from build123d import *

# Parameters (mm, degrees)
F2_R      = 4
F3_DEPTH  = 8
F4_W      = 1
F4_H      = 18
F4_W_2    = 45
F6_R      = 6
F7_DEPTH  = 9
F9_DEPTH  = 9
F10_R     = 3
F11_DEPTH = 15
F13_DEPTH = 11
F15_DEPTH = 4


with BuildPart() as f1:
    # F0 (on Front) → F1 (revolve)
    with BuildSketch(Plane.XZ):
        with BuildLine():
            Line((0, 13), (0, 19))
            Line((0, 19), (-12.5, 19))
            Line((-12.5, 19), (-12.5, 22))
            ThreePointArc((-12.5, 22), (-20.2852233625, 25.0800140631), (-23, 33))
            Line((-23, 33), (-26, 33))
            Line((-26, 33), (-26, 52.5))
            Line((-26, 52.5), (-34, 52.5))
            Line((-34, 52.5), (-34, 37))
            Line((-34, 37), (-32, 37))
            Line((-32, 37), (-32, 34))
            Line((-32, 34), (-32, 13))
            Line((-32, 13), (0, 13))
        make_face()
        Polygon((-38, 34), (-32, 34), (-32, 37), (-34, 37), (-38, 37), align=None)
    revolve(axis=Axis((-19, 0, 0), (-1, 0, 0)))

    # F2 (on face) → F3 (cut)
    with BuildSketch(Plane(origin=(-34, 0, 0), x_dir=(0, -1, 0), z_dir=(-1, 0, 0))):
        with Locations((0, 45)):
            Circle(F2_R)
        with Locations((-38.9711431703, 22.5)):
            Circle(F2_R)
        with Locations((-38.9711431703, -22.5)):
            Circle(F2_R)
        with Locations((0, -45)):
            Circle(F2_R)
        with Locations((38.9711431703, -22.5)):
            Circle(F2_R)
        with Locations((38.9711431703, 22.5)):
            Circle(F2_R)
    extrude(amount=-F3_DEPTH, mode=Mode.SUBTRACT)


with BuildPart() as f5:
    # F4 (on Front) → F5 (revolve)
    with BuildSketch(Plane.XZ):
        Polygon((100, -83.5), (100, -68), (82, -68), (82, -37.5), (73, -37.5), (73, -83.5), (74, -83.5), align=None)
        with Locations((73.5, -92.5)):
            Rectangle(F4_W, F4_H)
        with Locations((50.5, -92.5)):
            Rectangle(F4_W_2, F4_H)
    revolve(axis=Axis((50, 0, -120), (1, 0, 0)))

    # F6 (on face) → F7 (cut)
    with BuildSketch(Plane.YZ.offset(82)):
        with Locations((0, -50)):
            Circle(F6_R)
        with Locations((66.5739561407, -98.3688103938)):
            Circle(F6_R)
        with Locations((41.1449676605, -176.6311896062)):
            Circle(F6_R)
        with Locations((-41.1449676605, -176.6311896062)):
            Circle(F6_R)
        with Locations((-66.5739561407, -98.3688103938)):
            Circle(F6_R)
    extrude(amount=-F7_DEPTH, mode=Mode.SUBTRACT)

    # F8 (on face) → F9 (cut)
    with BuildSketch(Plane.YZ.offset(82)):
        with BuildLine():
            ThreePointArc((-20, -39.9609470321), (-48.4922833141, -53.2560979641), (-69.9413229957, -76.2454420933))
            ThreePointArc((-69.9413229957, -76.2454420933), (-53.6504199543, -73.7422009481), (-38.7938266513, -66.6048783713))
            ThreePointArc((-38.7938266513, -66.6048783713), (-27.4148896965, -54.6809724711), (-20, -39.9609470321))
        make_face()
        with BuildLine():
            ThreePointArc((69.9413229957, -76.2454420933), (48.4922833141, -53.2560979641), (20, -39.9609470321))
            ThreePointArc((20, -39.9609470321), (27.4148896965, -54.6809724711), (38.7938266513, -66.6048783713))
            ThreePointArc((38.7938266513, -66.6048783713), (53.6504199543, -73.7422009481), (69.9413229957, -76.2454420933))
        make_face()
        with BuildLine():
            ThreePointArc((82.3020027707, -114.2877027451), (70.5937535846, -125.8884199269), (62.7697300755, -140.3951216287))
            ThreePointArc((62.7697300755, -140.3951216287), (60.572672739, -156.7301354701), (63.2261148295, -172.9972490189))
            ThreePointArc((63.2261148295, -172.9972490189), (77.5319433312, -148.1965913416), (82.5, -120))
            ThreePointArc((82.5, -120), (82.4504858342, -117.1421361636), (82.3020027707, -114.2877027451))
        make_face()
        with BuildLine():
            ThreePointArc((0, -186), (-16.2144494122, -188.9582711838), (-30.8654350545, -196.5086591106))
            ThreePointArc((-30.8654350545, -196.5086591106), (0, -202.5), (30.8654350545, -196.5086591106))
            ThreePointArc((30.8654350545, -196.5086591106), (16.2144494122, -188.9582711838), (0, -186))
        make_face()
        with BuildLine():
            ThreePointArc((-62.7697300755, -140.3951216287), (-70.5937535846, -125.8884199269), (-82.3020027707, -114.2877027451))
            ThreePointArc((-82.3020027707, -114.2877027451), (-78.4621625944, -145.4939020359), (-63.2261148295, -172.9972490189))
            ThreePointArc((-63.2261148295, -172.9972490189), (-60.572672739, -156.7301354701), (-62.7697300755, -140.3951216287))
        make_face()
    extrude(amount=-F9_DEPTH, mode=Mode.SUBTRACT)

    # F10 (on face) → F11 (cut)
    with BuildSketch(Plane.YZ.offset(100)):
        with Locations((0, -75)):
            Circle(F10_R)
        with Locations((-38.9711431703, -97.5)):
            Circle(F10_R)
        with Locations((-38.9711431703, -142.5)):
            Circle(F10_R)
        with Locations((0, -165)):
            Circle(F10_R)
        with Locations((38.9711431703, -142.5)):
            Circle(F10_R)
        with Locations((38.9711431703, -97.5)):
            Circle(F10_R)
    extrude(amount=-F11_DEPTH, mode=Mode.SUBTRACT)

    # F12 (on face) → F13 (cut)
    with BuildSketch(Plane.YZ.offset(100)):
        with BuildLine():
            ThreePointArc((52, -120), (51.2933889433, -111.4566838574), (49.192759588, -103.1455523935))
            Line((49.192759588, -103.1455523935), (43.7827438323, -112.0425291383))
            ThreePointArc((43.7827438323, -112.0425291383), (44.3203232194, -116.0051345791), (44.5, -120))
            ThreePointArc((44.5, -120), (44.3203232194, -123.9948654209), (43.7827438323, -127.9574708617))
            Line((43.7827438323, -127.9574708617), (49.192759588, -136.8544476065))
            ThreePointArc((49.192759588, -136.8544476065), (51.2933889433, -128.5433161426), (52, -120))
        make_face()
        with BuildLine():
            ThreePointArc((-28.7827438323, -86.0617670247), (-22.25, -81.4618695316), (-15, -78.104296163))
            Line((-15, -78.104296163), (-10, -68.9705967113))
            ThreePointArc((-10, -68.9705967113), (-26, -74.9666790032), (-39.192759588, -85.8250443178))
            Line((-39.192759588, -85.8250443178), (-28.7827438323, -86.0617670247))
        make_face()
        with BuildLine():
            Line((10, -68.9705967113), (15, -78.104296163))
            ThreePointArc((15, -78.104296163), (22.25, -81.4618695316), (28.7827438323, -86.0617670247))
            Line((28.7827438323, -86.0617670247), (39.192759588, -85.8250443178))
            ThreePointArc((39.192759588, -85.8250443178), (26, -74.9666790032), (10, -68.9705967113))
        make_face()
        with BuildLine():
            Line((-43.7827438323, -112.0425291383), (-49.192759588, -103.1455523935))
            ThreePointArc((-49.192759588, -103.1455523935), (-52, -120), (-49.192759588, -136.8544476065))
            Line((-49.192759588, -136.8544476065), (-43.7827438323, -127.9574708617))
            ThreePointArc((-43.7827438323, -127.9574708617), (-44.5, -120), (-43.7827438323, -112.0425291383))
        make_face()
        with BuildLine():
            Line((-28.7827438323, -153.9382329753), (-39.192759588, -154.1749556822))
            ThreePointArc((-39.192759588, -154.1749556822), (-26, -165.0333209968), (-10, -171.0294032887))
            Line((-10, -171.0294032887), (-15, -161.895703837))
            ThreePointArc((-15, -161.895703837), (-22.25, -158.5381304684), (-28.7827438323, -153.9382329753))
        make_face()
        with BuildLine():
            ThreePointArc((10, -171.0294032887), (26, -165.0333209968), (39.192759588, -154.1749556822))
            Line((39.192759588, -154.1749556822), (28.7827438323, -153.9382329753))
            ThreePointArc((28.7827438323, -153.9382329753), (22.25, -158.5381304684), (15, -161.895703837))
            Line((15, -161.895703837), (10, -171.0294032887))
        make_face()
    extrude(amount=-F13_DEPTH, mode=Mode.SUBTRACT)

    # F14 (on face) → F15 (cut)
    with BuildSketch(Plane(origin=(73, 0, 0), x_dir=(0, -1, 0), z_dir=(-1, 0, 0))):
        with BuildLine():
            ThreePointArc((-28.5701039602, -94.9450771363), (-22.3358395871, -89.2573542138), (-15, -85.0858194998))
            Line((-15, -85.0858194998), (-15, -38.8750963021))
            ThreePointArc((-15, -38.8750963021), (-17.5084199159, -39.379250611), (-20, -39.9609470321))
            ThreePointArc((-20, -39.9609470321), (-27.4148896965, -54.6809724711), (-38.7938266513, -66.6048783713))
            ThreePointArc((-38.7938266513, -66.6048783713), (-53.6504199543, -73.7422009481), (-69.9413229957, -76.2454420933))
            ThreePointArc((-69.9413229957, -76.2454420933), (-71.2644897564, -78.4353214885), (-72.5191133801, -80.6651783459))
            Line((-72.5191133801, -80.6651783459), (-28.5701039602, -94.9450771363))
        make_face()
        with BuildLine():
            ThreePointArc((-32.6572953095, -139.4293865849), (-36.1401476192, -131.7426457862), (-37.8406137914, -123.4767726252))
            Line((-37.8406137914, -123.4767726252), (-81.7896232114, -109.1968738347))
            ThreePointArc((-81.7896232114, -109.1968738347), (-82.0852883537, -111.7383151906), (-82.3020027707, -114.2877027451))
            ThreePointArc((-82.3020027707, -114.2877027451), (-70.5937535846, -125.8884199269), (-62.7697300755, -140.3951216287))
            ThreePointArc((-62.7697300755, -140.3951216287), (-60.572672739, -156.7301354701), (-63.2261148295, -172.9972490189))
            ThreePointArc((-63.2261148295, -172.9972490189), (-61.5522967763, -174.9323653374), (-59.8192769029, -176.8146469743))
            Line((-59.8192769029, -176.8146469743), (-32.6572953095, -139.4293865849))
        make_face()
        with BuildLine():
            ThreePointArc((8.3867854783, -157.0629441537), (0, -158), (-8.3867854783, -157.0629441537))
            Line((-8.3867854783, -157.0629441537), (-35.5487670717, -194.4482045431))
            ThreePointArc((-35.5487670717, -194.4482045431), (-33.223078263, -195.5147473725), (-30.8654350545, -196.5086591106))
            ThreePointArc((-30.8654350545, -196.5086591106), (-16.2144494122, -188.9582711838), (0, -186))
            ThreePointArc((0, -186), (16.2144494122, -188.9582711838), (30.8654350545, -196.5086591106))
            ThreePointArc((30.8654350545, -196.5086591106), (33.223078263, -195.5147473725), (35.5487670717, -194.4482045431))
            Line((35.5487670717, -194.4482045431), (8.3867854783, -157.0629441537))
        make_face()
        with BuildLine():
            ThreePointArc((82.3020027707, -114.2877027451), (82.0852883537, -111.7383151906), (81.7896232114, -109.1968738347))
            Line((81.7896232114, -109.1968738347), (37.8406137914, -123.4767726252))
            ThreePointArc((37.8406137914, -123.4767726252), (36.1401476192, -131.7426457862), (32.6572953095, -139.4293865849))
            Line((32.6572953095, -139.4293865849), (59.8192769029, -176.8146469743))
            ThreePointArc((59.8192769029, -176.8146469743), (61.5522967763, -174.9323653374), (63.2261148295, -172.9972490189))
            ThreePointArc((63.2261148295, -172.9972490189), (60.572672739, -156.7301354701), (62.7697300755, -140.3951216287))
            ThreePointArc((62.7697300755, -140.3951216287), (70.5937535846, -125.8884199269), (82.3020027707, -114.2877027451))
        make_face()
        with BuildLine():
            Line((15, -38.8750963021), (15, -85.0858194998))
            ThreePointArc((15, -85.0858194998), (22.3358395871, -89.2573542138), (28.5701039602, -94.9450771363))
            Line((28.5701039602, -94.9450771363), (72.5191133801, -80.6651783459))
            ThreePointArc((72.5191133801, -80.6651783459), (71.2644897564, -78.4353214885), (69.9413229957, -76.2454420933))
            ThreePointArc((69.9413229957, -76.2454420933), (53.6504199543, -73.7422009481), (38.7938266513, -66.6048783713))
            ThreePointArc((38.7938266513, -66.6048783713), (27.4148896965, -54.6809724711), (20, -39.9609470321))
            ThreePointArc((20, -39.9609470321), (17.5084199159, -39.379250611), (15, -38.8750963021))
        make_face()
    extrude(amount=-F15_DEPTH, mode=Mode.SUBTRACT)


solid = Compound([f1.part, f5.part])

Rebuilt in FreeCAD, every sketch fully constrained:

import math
import FreeCAD as App
import Part
import Sketcher
Q = App.Units.Quantity

doc = App.newDocument("Part")
body = doc.addObject("PartDesign::Body", "Body")

sketch1 = body.newObject("Sketcher::SketchObject", "Sketch")
sketch1.AttachmentSupport = (doc.getObject("XZ_Plane"), [""])
sketch1.MapMode = "FlatFace"
sketch1.addGeometry([
    Part.LineSegment(App.Vector(0, 13, 0), App.Vector(0, 19, 0)),
    Part.LineSegment(App.Vector(0, 19, 0), App.Vector(-12.5, 19, 0)),
    Part.LineSegment(App.Vector(-12.5, 19, 0), App.Vector(-12.5, 22, 0)),
    Part.ArcOfCircle(Part.Circle(App.Vector(-13.1, 32, 0), App.Vector(0, 0, 1), 10), math.radians(174), math.radians(273)),
    Part.LineSegment(App.Vector(-23, 33, 0), App.Vector(-26, 33, 0)),
    Part.LineSegment(App.Vector(-26, 33, 0), App.Vector(-26, 52.5, 0)),
    Part.LineSegment(App.Vector(-26, 52.5, 0), App.Vector(-34, 52.5, 0)),
    Part.LineSegment(App.Vector(-34, 52.5, 0), App.Vector(-34, 37, 0)),
    Part.LineSegment(App.Vector(-34, 37, 0), App.Vector(-38, 37, 0)),
    Part.LineSegment(App.Vector(-38, 37, 0), App.Vector(-38, 34, 0)),
    Part.LineSegment(App.Vector(-38, 34, 0), App.Vector(-32, 34, 0)),
    Part.LineSegment(App.Vector(-32, 34, 0), App.Vector(-32, 13, 0)),
    Part.LineSegment(App.Vector(-32, 13, 0), App.Vector(0, 13, 0)),
], False)
sketch1.addConstraint([
    Sketcher.Constraint("Coincident", 0, 2, 1, 1),
    Sketcher.Constraint("Coincident", 1, 2, 2, 1),
    Sketcher.Constraint("Coincident", 2, 2, 3, 2),
    Sketcher.Constraint("Coincident", 3, 1, 4, 1),
    Sketcher.Constraint("Coincident", 4, 2, 5, 1),
    Sketcher.Constraint("Coincident", 5, 2, 6, 1),
    Sketcher.Constraint("Coincident", 6, 2, 7, 1),
    Sketcher.Constraint("Coincident", 7, 2, 8, 1),
    Sketcher.Constraint("Coincident", 8, 2, 9, 1),
    Sketcher.Constraint("Coincident", 9, 2, 10, 1),
    Sketcher.Constraint("Coincident", 10, 2, 11, 1),
    Sketcher.Constraint("Coincident", 11, 2, 12, 1),
    Sketcher.Constraint("Coincident", 12, 2, 0, 1),
    Sketcher.Constraint("Vertical", 0),
    Sketcher.Constraint("Horizontal", 1),
    Sketcher.Constraint("Vertical", 2),
    Sketcher.Constraint("Horizontal", 4),
    Sketcher.Constraint("Vertical", 5),
    Sketcher.Constraint("Horizontal", 6),
    Sketcher.Constraint("Vertical", 7),
    Sketcher.Constraint("Horizontal", 8),
    Sketcher.Constraint("Vertical", 9),
    Sketcher.Constraint("Horizontal", 10),
    Sketcher.Constraint("Vertical", 11),
    Sketcher.Constraint("Horizontal", 12),
    Sketcher.Constraint("PointOnObject", 0, 2, -2),
    Sketcher.Constraint("Equal", 10, 0),
    Sketcher.Constraint("Equal", 4, 2),
    Sketcher.Constraint("Equal", 2, 9),
    Sketcher.Constraint("Radius", 3, 10.0),
    Sketcher.Constraint("DistanceX", 4, 2, 4, 1, 3.0),
    Sketcher.Constraint("DistanceX", 6, 2, 6, 1, 8.0),
    Sketcher.Constraint("DistanceX", 8, 2, 8, 1, 4.0),
    Sketcher.Constraint("DistanceX", 10, 1, 10, 2, 6.0),
    Sketcher.Constraint("DistanceX", 12, 1, 12, 2, 32.0),
    Sketcher.Constraint("DistanceY", 11, 2, 11, 1, 21.0),
    Sketcher.Constraint("DistanceX", 1, 2, 1, 1, 12.5),
    Sketcher.Constraint("DistanceY", 5, 1, 5, 2, 19.5),
    Sketcher.Constraint("DistanceY", 7, 2, 7, 1, 15.5),
    Sketcher.Constraint("DistanceY", -1, 1, 0, 2, 19.0),
])
revolution = body.newObject("PartDesign::Revolution", "Revolution")
revolution.Profile = sketch1
revolution.ReferenceAxis = (sketch1, ["H_Axis"])
revolution.Angle = 360

sketch2 = body.newObject("Sketcher::SketchObject", "Sketch001")
sketch2.AttachmentSupport = (doc.getObject("YZ_Plane"), [""])
sketch2.MapMode = "FlatFace"
sketch2.AttachmentOffset = App.Placement(App.Vector(0, 0, -34), App.Rotation())
sketch2.addGeometry([
    Part.Circle(App.Vector(0, 45, 0), App.Vector(0, 0, 1), 4),
    Part.Circle(App.Vector(39, 22.5, 0), App.Vector(0, 0, 1), 4),
    Part.Circle(App.Vector(39, -22.5, 0), App.Vector(0, 0, 1), 4),
    Part.Circle(App.Vector(0, -45, 0), App.Vector(0, 0, 1), 4),
    Part.Circle(App.Vector(-39, -22.5, 0), App.Vector(0, 0, 1), 4),
    Part.Circle(App.Vector(-39, 22.5, 0), App.Vector(0, 0, 1), 4),
], False)
sketch2.addConstraint([
    Sketcher.Constraint("Equal", 0, 1),
    Sketcher.Constraint("Equal", 1, 2),
    Sketcher.Constraint("Equal", 2, 3),
    Sketcher.Constraint("Equal", 3, 4),
    Sketcher.Constraint("Equal", 4, 5),
    Sketcher.Constraint("Symmetric", 0, 3, 3, 3, -1, 1),
    Sketcher.Constraint("Symmetric", 1, 3, 4, 3, -1, 1),
    Sketcher.Constraint("Symmetric", 2, 3, 5, 3, -1, 1),
    Sketcher.Constraint("Symmetric", 2, 3, 4, 3, -2),
    Sketcher.Constraint("PointOnObject", 0, 3, -2),
    Sketcher.Constraint("Diameter", 0, 8.0),
    Sketcher.Constraint("DistanceY", -1, 1, 0, 3, 45.0),
    Sketcher.Constraint("DistanceY", 2, 3, 1, 3, 45.0),
    Sketcher.Constraint("DistanceX", -1, 1, 1, 3, 38.971143),
])
pocket1 = body.newObject("PartDesign::Pocket", "Pocket")
pocket1.Profile = sketch2
pocket1.Length = 8
pocket1.Reversed = True
body2 = doc.addObject("PartDesign::Body", "Body001")

sketch3 = body2.newObject("Sketcher::SketchObject", "Sketch002")
sketch3.AttachmentSupport = (doc.getObject("XZ_Plane001"), [""])
sketch3.MapMode = "FlatFace"
sketch3.addGeometry([
    Part.LineSegment(App.Vector(74, -84, 0), App.Vector(100, -84, 0)),
    Part.LineSegment(App.Vector(100, -84, 0), App.Vector(100, -68, 0)),
    Part.LineSegment(App.Vector(100, -68, 0), App.Vector(82, -68, 0)),
    Part.LineSegment(App.Vector(82, -68, 0), App.Vector(82, -38, 0)),
    Part.LineSegment(App.Vector(82, -38, 0), App.Vector(73, -38, 0)),
    Part.LineSegment(App.Vector(73, -38, 0), App.Vector(73, -84, 0)),
    Part.LineSegment(App.Vector(73, -84, 0), App.Vector(28, -84, 0)),
    Part.LineSegment(App.Vector(28, -84, 0), App.Vector(28, -102, 0)),
    Part.LineSegment(App.Vector(28, -102, 0), App.Vector(74, -102, 0)),
    Part.LineSegment(App.Vector(74, -102, 0), App.Vector(74, -84, 0)),
], False)
sketch3.addGeometry(Part.LineSegment(App.Vector(28, -120, 0), App.Vector(100, -120, 0)), True)
sketch3.addConstraint([
    Sketcher.Constraint("Coincident", 0, 2, 1, 1),
    Sketcher.Constraint("Coincident", 1, 2, 2, 1),
    Sketcher.Constraint("Coincident", 2, 2, 3, 1),
    Sketcher.Constraint("Coincident", 3, 2, 4, 1),
    Sketcher.Constraint("Coincident", 4, 2, 5, 1),
    Sketcher.Constraint("Coincident", 5, 2, 6, 1),
    Sketcher.Constraint("Coincident", 6, 2, 7, 1),
    Sketcher.Constraint("Coincident", 7, 2, 8, 1),
    Sketcher.Constraint("Coincident", 8, 2, 9, 1),
    Sketcher.Constraint("Coincident", 9, 2, 0, 1),
    Sketcher.Constraint("Horizontal", 0),
    Sketcher.Constraint("Vertical", 1),
    Sketcher.Constraint("Horizontal", 2),
    Sketcher.Constraint("Vertical", 3),
    Sketcher.Constraint("Horizontal", 4),
    Sketcher.Constraint("Vertical", 5),
    Sketcher.Constraint("Horizontal", 6),
    Sketcher.Constraint("Vertical", 7),
    Sketcher.Constraint("Horizontal", 8),
    Sketcher.Constraint("Vertical", 9),
    Sketcher.Constraint("Horizontal", 10),
    Sketcher.Constraint("Horizontal", 0, 2, 5, 2),
    Sketcher.Constraint("Vertical", 7, 2, 10, 1),
    Sketcher.Constraint("Vertical", 1, 2, 10, 2),
    Sketcher.Constraint("Equal", 8, 5),
    Sketcher.Constraint("Equal", 2, 7),
    Sketcher.Constraint("DistanceX", 0, 1, 0, 2, 26.0),
    Sketcher.Constraint("DistanceX", 2, 2, 2, 1, 18.0),
    Sketcher.Constraint("DistanceX", 4, 2, 4, 1, 9.0),
    Sketcher.Constraint("DistanceX", 6, 2, 6, 1, 45.0),
    Sketcher.Constraint("DistanceY", 1, 1, 1, 2, 15.5),
    Sketcher.Constraint("DistanceX", -1, 1, 0, 2, 100.0),
    Sketcher.Constraint("DistanceY", 1, 2, -1, 1, 68.0),
    Sketcher.Constraint("DistanceY", 10, 1, -1, 1, 120.0),
])
revolution2 = body2.newObject("PartDesign::Revolution", "Revolution001")
revolution2.Profile = sketch3
revolution2.ReferenceAxis = (sketch3, ["Axis0"])
revolution2.Angle = 360

sketch4 = body2.newObject("Sketcher::SketchObject", "Sketch003")
sketch4.AttachmentSupport = (doc.getObject("YZ_Plane001"), [""])
sketch4.MapMode = "FlatFace"
sketch4.AttachmentOffset = App.Placement(App.Vector(0, 0, 82), App.Rotation())
sketch4.addGeometry([
    Part.Circle(App.Vector(0, -50, 0), App.Vector(0, 0, 1), 6),
    Part.Circle(App.Vector(67, -98, 0), App.Vector(0, 0, 1), 6),
    Part.Circle(App.Vector(41, -177, 0), App.Vector(0, 0, 1), 6),
    Part.Circle(App.Vector(-41, -177, 0), App.Vector(0, 0, 1), 6),
    Part.Circle(App.Vector(-67, -98, 0), App.Vector(0, 0, 1), 6),
], False)
sketch4.addConstraint([
    Sketcher.Constraint("Equal", 0, 1),
    Sketcher.Constraint("Equal", 1, 2),
    Sketcher.Constraint("Equal", 2, 3),
    Sketcher.Constraint("Equal", 3, 4),
    Sketcher.Constraint("Symmetric", 2, 3, 3, 3, -2),
    Sketcher.Constraint("Symmetric", 1, 3, 4, 3, -2),
    Sketcher.Constraint("PointOnObject", 0, 3, -2),
    Sketcher.Constraint("Diameter", 0, 12.0),
    Sketcher.Constraint("DistanceY", 0, 3, -1, 1, 50.0),
    Sketcher.Constraint("DistanceY", 1, 3, -1, 1, 98.36881),
    Sketcher.Constraint("DistanceY", 2, 3, -1, 1, 176.63119),
    Sketcher.Constraint("DistanceX", 2, 3, 1, 3, 25.428988),
    Sketcher.Constraint("DistanceX", -1, 1, 1, 3, 66.573956),
])
pocket2 = body2.newObject("PartDesign::Pocket", "Pocket001")
pocket2.Profile = sketch4
pocket2.Length = 9

sketch5 = body2.newObject("Sketcher::SketchObject", "Sketch004")
sketch5.AttachmentSupport = (doc.getObject("YZ_Plane001"), [""])
sketch5.MapMode = "FlatFace"
sketch5.AttachmentOffset = App.Placement(App.Vector(0, 0, 82), App.Rotation())
sketch5.addGeometry([
    Part.ArcOfCircle(Part.Circle(App.Vector(0, -120, 0), App.Vector(0, 0, 1), 82), math.radians(104), math.radians(148)),
    Part.ArcOfCircle(Part.Circle(App.Vector(-70, -20, 0), App.Vector(0, 0, 1), 56), math.radians(-90), math.radians(-56)),
    Part.ArcOfCircle(Part.Circle(App.Vector(-73, -22, 0), App.Vector(0, 0, 1), 56), math.radians(-52), math.radians(-18)),
    Part.ArcOfCircle(Part.Circle(App.Vector(0, -120, 0), App.Vector(0, 0, 1), 82), math.radians(32), math.radians(76)),
    Part.ArcOfCircle(Part.Circle(App.Vector(73, -22, 0), App.Vector(0, 0, 1), 56), math.radians(-162), math.radians(-128)),
    Part.ArcOfCircle(Part.Circle(App.Vector(70, -20, 0), App.Vector(0, 0, 1), 56), math.radians(-124), math.radians(-90)),
    Part.ArcOfCircle(Part.Circle(App.Vector(115, -159, 0), App.Vector(0, 0, 1), 56), math.radians(126), math.radians(160)),
    Part.ArcOfCircle(Part.Circle(App.Vector(117, -156, 0), App.Vector(0, 0, 1), 56), math.radians(164), math.radians(198)),
    Part.ArcOfCircle(Part.Circle(App.Vector(0, -120, 0), App.Vector(0, 0, 1), 82), math.radians(-40), math.radians(0)),
    Part.ArcOfCircle(Part.Circle(App.Vector(0, -120, 0), App.Vector(0, 0, 1), 82), math.radians(0), math.radians(3.97)),
    Part.ArcOfCircle(Part.Circle(App.Vector(2, -242, 0), App.Vector(0, 0, 1), 56), math.radians(92), math.radians(126)),
    Part.ArcOfCircle(Part.Circle(App.Vector(0, -120, 0), App.Vector(0, 0, 1), 82), math.radians(-112), math.radians(-68)),
    Part.ArcOfCircle(Part.Circle(App.Vector(-2, -242, 0), App.Vector(0, 0, 1), 56), math.radians(54), math.radians(88)),
    Part.ArcOfCircle(Part.Circle(App.Vector(-115, -159, 0), App.Vector(0, 0, 1), 56), math.radians(20), math.radians(54)),
    Part.ArcOfCircle(Part.Circle(App.Vector(0, -120, 0), App.Vector(0, 0, 1), 82), math.radians(176), math.radians(220)),
    Part.ArcOfCircle(Part.Circle(App.Vector(-117, -156, 0), App.Vector(0, 0, 1), 56), math.radians(-18), math.radians(16)),
], False)
sketch5.addConstraint([
    Sketcher.Constraint("Coincident", 0, 2, 1, 1),
    Sketcher.Constraint("Coincident", 1, 2, 2, 1),
    Sketcher.Constraint("Coincident", 2, 2, 0, 1),
    Sketcher.Constraint("Coincident", 3, 2, 4, 1),
    Sketcher.Constraint("Coincident", 4, 2, 5, 1),
    Sketcher.Constraint("Coincident", 5, 2, 3, 1),
    Sketcher.Constraint("Coincident", 6, 2, 7, 1),
    Sketcher.Constraint("Coincident", 7, 2, 8, 1),
    Sketcher.Constraint("Tangent", 8, 2, 9, 1),
    Sketcher.Constraint("Coincident", 9, 2, 6, 1),
    Sketcher.Constraint("Coincident", 10, 2, 11, 1),
    Sketcher.Constraint("Coincident", 11, 2, 12, 1),
    Sketcher.Constraint("Coincident", 12, 2, 10, 1),
    Sketcher.Constraint("Coincident", 13, 2, 14, 1),
    Sketcher.Constraint("Coincident", 14, 2, 15, 1),
    Sketcher.Constraint("Coincident", 15, 2, 13, 1),
    Sketcher.Constraint("Coincident", 3, 3, 0, 3),
    Sketcher.Constraint("Coincident", 8, 3, 0, 3),
    Sketcher.Constraint("Coincident", 11, 3, 0, 3),
    Sketcher.Constraint("Coincident", 14, 3, 0, 3),
    Sketcher.Constraint("Equal", 1, 2),
    Sketcher.Constraint("Equal", 0, 3),
    Sketcher.Constraint("Equal", 2, 4),
    Sketcher.Constraint("Equal", 4, 5),
    Sketcher.Constraint("Equal", 5, 6),
    Sketcher.Constraint("Equal", 6, 7),
    Sketcher.Constraint("Equal", 3, 8),
    Sketcher.Constraint("Equal", 8, 9),
    Sketcher.Constraint("Equal", 7, 10),
    Sketcher.Constraint("Equal", 9, 11),
    Sketcher.Constraint("Equal", 10, 12),
    Sketcher.Constraint("Equal", 12, 13),
    Sketcher.Constraint("Equal", 11, 14),
    Sketcher.Constraint("Equal", 13, 15),
    Sketcher.Constraint("Symmetric", 2, 3, 4, 3, -2),
    Sketcher.Constraint("Symmetric", 1, 3, 5, 3, -2),
    Sketcher.Constraint("Symmetric", 10, 3, 12, 3, -2),
    Sketcher.Constraint("Symmetric", 6, 3, 13, 3, -2),
    Sketcher.Constraint("Symmetric", 7, 3, 15, 3, -2),
    Sketcher.Constraint("PointOnObject", 0, 3, -2),
    Sketcher.Constraint("Horizontal", 14, 3, 8, 2),
    Sketcher.Constraint("Radius", 0, 82.5),
    Sketcher.Constraint("DistanceY", 0, 3, -1, 1, 120.0),
    Sketcher.Constraint("DistanceX", 2, 2, -1, 1, 20.0),
    Sketcher.Constraint("DistanceY", 12, 2, -1, 1, 186.0),
    Sketcher.Constraint("Radius", 1, 56.001063),
    Sketcher.Constraint("DistanceY", 7, 2, 6, 3, 13.561298),
    Sketcher.Constraint("DistanceX", 1, 3, -1, 1, 70.208509),
    Sketcher.Constraint("DistanceY", 6, 3, -1, 1, 159.435951),
    Sketcher.Constraint("DistanceX", -1, 1, 7, 3, 116.56825),
    Sketcher.Constraint("DistanceX", -1, 1, 10, 3, 1.834631),
    Sketcher.Constraint("DistanceY", 1, 2, -1, 1, 66.604878),
    Sketcher.Constraint("DistanceX", -1, 1, 6, 2, 62.76973),
    Sketcher.Constraint("DistanceY", 2, 3, 1, 3, 2.156738),
])
pocket3 = body2.newObject("PartDesign::Pocket", "Pocket002")
pocket3.Profile = sketch5
pocket3.Length = 9

sketch6 = body2.newObject("Sketcher::SketchObject", "Sketch005")
sketch6.AttachmentSupport = (doc.getObject("YZ_Plane001"), [""])
sketch6.MapMode = "FlatFace"
sketch6.AttachmentOffset = App.Placement(App.Vector(0, 0, 100), App.Rotation())
sketch6.addGeometry([
    Part.Circle(App.Vector(0, -75, 0), App.Vector(0, 0, 1), 3),
    Part.Circle(App.Vector(-39, -97.5, 0), App.Vector(0, 0, 1), 3),
    Part.Circle(App.Vector(-39, -142.5, 0), App.Vector(0, 0, 1), 3),
    Part.Circle(App.Vector(0, -165, 0), App.Vector(0, 0, 1), 3),
    Part.Circle(App.Vector(39, -142.5, 0), App.Vector(0, 0, 1), 3),
    Part.Circle(App.Vector(39, -97.5, 0), App.Vector(0, 0, 1), 3),
], False)
sketch6.addConstraint([
    Sketcher.Constraint("Equal", 0, 1),
    Sketcher.Constraint("Equal", 1, 2),
    Sketcher.Constraint("Equal", 2, 3),
    Sketcher.Constraint("Equal", 3, 4),
    Sketcher.Constraint("Equal", 4, 5),
    Sketcher.Constraint("Symmetric", 2, 3, 4, 3, -2),
    Sketcher.Constraint("Symmetric", 1, 3, 5, 3, -2),
    Sketcher.Constraint("PointOnObject", 0, 3, -2),
    Sketcher.Constraint("PointOnObject", 3, 3, -2),
    Sketcher.Constraint("Vertical", 1, 3, 2, 3),
    Sketcher.Constraint("Diameter", 0, 6.0),
    Sketcher.Constraint("DistanceY", 0, 3, -1, 1, 75.0),
    Sketcher.Constraint("DistanceY", 3, 3, -1, 1, 165.0),
    Sketcher.Constraint("DistanceY", 2, 3, 1, 3, 45.0),
    Sketcher.Constraint("DistanceY", 1, 3, -1, 1, 97.5),
    Sketcher.Constraint("DistanceX", 1, 3, -1, 1, 38.971143),
])
pocket4 = body2.newObject("PartDesign::Pocket", "Pocket003")
pocket4.Profile = sketch6
pocket4.Length = 15

sketch7 = body2.newObject("Sketcher::SketchObject", "Sketch006")
sketch7.AttachmentSupport = (doc.getObject("YZ_Plane001"), [""])
sketch7.MapMode = "FlatFace"
sketch7.AttachmentOffset = App.Placement(App.Vector(0, 0, 100), App.Rotation())
sketch7.addGeometry([
    Part.ArcOfCircle(Part.Circle(App.Vector(0, -120, 0), App.Vector(0, 0, 1), 52), math.radians(0), math.radians(18.91)),
    Part.LineSegment(App.Vector(49, -103, 0), App.Vector(44, -112, 0)),
    Part.ArcOfCircle(Part.Circle(App.Vector(0, -120, 0), App.Vector(0, 0, 1), 44), math.radians(0), math.radians(10.3)),
    Part.ArcOfCircle(Part.Circle(App.Vector(0, -120, 0), App.Vector(0, 0, 1), 44), math.radians(-10.3), math.radians(0)),
    Part.LineSegment(App.Vector(44, -128, 0), App.Vector(49, -137, 0)),
    Part.ArcOfCircle(Part.Circle(App.Vector(0, -120, 0), App.Vector(0, 0, 1), 52), math.radians(-18.91), math.radians(0)),
    Part.ArcOfCircle(Part.Circle(App.Vector(0, -120, 0), App.Vector(0, 0, 1), 44), math.radians(110), math.radians(130)),
    Part.LineSegment(App.Vector(-15, -78, 0), App.Vector(-10, -69, 0)),
    Part.ArcOfCircle(Part.Circle(App.Vector(0, -120, 0), App.Vector(0, 0, 1), 52), math.radians(101), math.radians(139)),
    Part.LineSegment(App.Vector(-39, -86, 0), App.Vector(-29, -86, 0)),
    Part.LineSegment(App.Vector(10, -69, 0), App.Vector(15, -78, 0)),
    Part.ArcOfCircle(Part.Circle(App.Vector(0, -120, 0), App.Vector(0, 0, 1), 44), math.radians(50), math.radians(70)),
    Part.LineSegment(App.Vector(29, -86, 0), App.Vector(39, -86, 0)),
    Part.ArcOfCircle(Part.Circle(App.Vector(0, -120, 0), App.Vector(0, 0, 1), 52), math.radians(41), math.radians(79)),
    Part.LineSegment(App.Vector(-44, -112, 0), App.Vector(-49, -103, 0)),
    Part.ArcOfCircle(Part.Circle(App.Vector(0, -120, 0), App.Vector(0, 0, 1), 52), math.radians(161), math.radians(199)),
    Part.LineSegment(App.Vector(-49, -137, 0), App.Vector(-44, -128, 0)),
    Part.ArcOfCircle(Part.Circle(App.Vector(0, -120, 0), App.Vector(0, 0, 1), 44), math.radians(170), math.radians(190)),
    Part.LineSegment(App.Vector(-29, -154, 0), App.Vector(-39, -154, 0)),
    Part.ArcOfCircle(Part.Circle(App.Vector(0, -120, 0), App.Vector(0, 0, 1), 52), math.radians(-139), math.radians(-101)),
    Part.LineSegment(App.Vector(-10, -171, 0), App.Vector(-15, -162, 0)),
    Part.ArcOfCircle(Part.Circle(App.Vector(0, -120, 0), App.Vector(0, 0, 1), 44), math.radians(-130), math.radians(-110)),
    Part.ArcOfCircle(Part.Circle(App.Vector(0, -120, 0), App.Vector(0, 0, 1), 52), math.radians(-79), math.radians(-41)),
    Part.LineSegment(App.Vector(39, -154, 0), App.Vector(29, -154, 0)),
    Part.ArcOfCircle(Part.Circle(App.Vector(0, -120, 0), App.Vector(0, 0, 1), 44), math.radians(-70), math.radians(-50)),
    Part.LineSegment(App.Vector(15, -162, 0), App.Vector(10, -171, 0)),
], False)
sketch7.addConstraint([
    Sketcher.Constraint("Coincident", 0, 2, 1, 1),
    Sketcher.Constraint("Coincident", 1, 2, 2, 2),
    Sketcher.Constraint("Tangent", 2, 1, 3, 2),
    Sketcher.Constraint("Coincident", 3, 1, 4, 1),
    Sketcher.Constraint("Coincident", 4, 2, 5, 1),
    Sketcher.Constraint("Tangent", 5, 2, 0, 1),
    Sketcher.Constraint("Coincident", 6, 1, 7, 1),
    Sketcher.Constraint("Coincident", 7, 2, 8, 1),
    Sketcher.Constraint("Coincident", 8, 2, 9, 1),
    Sketcher.Constraint("Coincident", 9, 2, 6, 2),
    Sketcher.Constraint("Coincident", 10, 2, 11, 2),
    Sketcher.Constraint("Coincident", 11, 1, 12, 1),
    Sketcher.Constraint("Coincident", 12, 2, 13, 1),
    Sketcher.Constraint("Coincident", 13, 2, 10, 1),
    Sketcher.Constraint("Coincident", 14, 2, 15, 1),
    Sketcher.Constraint("Coincident", 15, 2, 16, 1),
    Sketcher.Constraint("Coincident", 16, 2, 17, 2),
    Sketcher.Constraint("Coincident", 17, 1, 14, 1),
    Sketcher.Constraint("Coincident", 18, 2, 19, 1),
    Sketcher.Constraint("Coincident", 19, 2, 20, 1),
    Sketcher.Constraint("Coincident", 20, 2, 21, 2),
    Sketcher.Constraint("Coincident", 21, 1, 18, 1),
    Sketcher.Constraint("Coincident", 22, 2, 23, 1),
    Sketcher.Constraint("Coincident", 23, 2, 24, 2),
    Sketcher.Constraint("Coincident", 24, 1, 25, 1),
    Sketcher.Constraint("Coincident", 25, 2, 22, 1),
    Sketcher.Constraint("Coincident", 2, 3, 0, 3),
    Sketcher.Constraint("Coincident", 6, 3, 0, 3),
    Sketcher.Constraint("Coincident", 8, 3, 0, 3),
    Sketcher.Constraint("Coincident", 11, 3, 0, 3),
    Sketcher.Constraint("Coincident", 13, 3, 0, 3),
    Sketcher.Constraint("Coincident", 15, 3, 0, 3),
    Sketcher.Constraint("Coincident", 17, 3, 0, 3),
    Sketcher.Constraint("Coincident", 19, 3, 0, 3),
    Sketcher.Constraint("Coincident", 21, 3, 0, 3),
    Sketcher.Constraint("Coincident", 22, 3, 0, 3),
    Sketcher.Constraint("Coincident", 24, 3, 0, 3),
    Sketcher.Constraint("Equal", 2, 3),
    Sketcher.Constraint("Equal", 0, 5),
    Sketcher.Constraint("Equal", 3, 6),
    Sketcher.Constraint("Equal", 5, 8),
    Sketcher.Constraint("Equal", 6, 11),
    Sketcher.Constraint("Equal", 8, 13),
    Sketcher.Constraint("Equal", 13, 15),
    Sketcher.Constraint("Equal", 11, 17),
    Sketcher.Constraint("Equal", 15, 19),
    Sketcher.Constraint("Equal", 17, 21),
    Sketcher.Constraint("Equal", 19, 22),
    Sketcher.Constraint("Equal", 21, 24),
    Sketcher.Constraint("Symmetric", 6, 1, 10, 2, -2),
    Sketcher.Constraint("Parallel", 4, 14),
    Sketcher.Constraint("Parallel", 1, 16),
    Sketcher.Constraint("Parallel", 12, 18),
    Sketcher.Constraint("Parallel", 10, 20),
    Sketcher.Constraint("Parallel", 9, 23),
    Sketcher.Constraint("Parallel", 7, 25),
    Sketcher.Constraint("Horizontal", 24, 3, 2, 1),
    Sketcher.Constraint("Horizontal", 2, 1, 5, 2),
    Sketcher.Constraint("Horizontal", 9, 2, 11, 1),
    Sketcher.Constraint("Horizontal", 8, 2, 12, 2),
    Sketcher.Constraint("Horizontal", 7, 2, 13, 2),
    Sketcher.Constraint("Horizontal", 0, 2, 14, 2),
    Sketcher.Constraint("Horizontal", 4, 2, 15, 2),
    Sketcher.Constraint("Horizontal", 3, 1, 16, 2),
    Sketcher.Constraint("Horizontal", 18, 2, 22, 2),
    Sketcher.Constraint("Horizontal", 20, 2, 24, 1),
    Sketcher.Constraint("Vertical", 1, 2, 3, 1),
    Sketcher.Constraint("Vertical", 8, 2, 18, 2),
    Sketcher.Constraint("Vertical", 7, 2, 19, 2),
    Sketcher.Constraint("Equal", 4, 7),
    Sketcher.Constraint("Equal", 7, 9),
    Sketcher.Constraint("Radius", 0, 52.0),
    Sketcher.Constraint("Radius", 2, 44.5),
    Sketcher.Constraint("DistanceY", 0, 3, -1, 1, 120.0),
    Sketcher.Constraint("DistanceX", 6, 1, -1, 1, 15.0),
    Sketcher.Constraint("DistanceX", 7, 2, -1, 1, 10.0),
    Sketcher.Constraint("DistanceX", 11, 1, 1, 2, 15.0),
    Sketcher.Constraint("DistanceX", 12, 2, 0, 2, 10.0),
])
pocket5 = body2.newObject("PartDesign::Pocket", "Pocket004")
pocket5.Profile = sketch7
pocket5.Length = 11

sketch8 = body2.newObject("Sketcher::SketchObject", "Sketch007")
sketch8.AttachmentSupport = (doc.getObject("YZ_Plane001"), [""])
sketch8.MapMode = "FlatFace"
sketch8.AttachmentOffset = App.Placement(App.Vector(0, 0, 73), App.Rotation())
sketch8.addGeometry([
    Part.ArcOfCircle(Part.Circle(App.Vector(0, -120, 0), App.Vector(0, 0, 1), 38), math.radians(41), math.radians(67)),
    Part.LineSegment(App.Vector(15, -85, 0), App.Vector(15, -39, 0)),
    Part.ArcOfCircle(Part.Circle(App.Vector(0, -120, 0), App.Vector(0, 0, 1), 83), math.radians(75.97), math.radians(79.52)),
    Part.ArcOfCircle(Part.Circle(App.Vector(73, -22, 0), App.Vector(0, 0, 1), 56), math.radians(-162), math.radians(-128)),
    Part.ArcOfCircle(Part.Circle(App.Vector(70, -20, 0), App.Vector(0, 0, 1), 56), math.radians(-124), math.radians(-90)),
    Part.ArcOfCircle(Part.Circle(App.Vector(0, -120, 0), App.Vector(0, 0, 1), 82), math.radians(28.48), math.radians(32.03)),
    Part.LineSegment(App.Vector(73, -81, 0), App.Vector(29, -95, 0)),
    Part.ArcOfCircle(Part.Circle(App.Vector(0, -120, 0), App.Vector(0, 0, 1), 38), math.radians(-31), math.radians(-5)),
    Part.LineSegment(App.Vector(38, -123, 0), App.Vector(82, -109, 0)),
    Part.ArcOfCircle(Part.Circle(App.Vector(0, -120, 0), App.Vector(0, 0, 1), 83), math.radians(3.97), math.radians(7.52)),
    Part.ArcOfCircle(Part.Circle(App.Vector(115, -159, 0), App.Vector(0, 0, 1), 56), math.radians(126), math.radians(160)),
    Part.ArcOfCircle(Part.Circle(App.Vector(117, -156, 0), App.Vector(0, 0, 1), 56), math.radians(164), math.radians(198)),
    Part.ArcOfCircle(Part.Circle(App.Vector(0, -120, 0), App.Vector(0, 0, 1), 83), math.radians(-43.52), math.radians(-39.97)),
    Part.LineSegment(App.Vector(60, -177, 0), App.Vector(33, -139, 0)),
    Part.ArcOfCircle(Part.Circle(App.Vector(0, -120, 0), App.Vector(0, 0, 1), 38), math.radians(-103), math.radians(-77)),
    Part.LineSegment(App.Vector(8, -157, 0), App.Vector(36, -194, 0)),
    Part.ArcOfCircle(Part.Circle(App.Vector(0, -120, 0), App.Vector(0, 0, 1), 83), math.radians(-68.03), math.radians(-64.48)),
    Part.ArcOfCircle(Part.Circle(App.Vector(-2, -242, 0), App.Vector(0, 0, 1), 56), math.radians(54), math.radians(88)),
    Part.ArcOfCircle(Part.Circle(App.Vector(2, -242, 0), App.Vector(0, 0, 1), 56), math.radians(92), math.radians(126)),
    Part.ArcOfCircle(Part.Circle(App.Vector(0, -120, 0), App.Vector(0, 0, 1), 83), math.radians(-115.52), math.radians(-111.97)),
    Part.LineSegment(App.Vector(-36, -194, 0), App.Vector(-8, -157, 0)),
    Part.ArcOfCircle(Part.Circle(App.Vector(0, -120, 0), App.Vector(0, 0, 1), 83), math.radians(172.48), math.radians(176.03)),
    Part.LineSegment(App.Vector(-82, -109, 0), App.Vector(-38, -123, 0)),
    Part.ArcOfCircle(Part.Circle(App.Vector(0, -120, 0), App.Vector(0, 0, 1), 38), math.radians(-175), math.radians(-149)),
    Part.LineSegment(App.Vector(-33, -139, 0), App.Vector(-60, -177, 0)),
    Part.ArcOfCircle(Part.Circle(App.Vector(0, -120, 0), App.Vector(0, 0, 1), 83), math.radians(-140.03), math.radians(-136.48)),
    Part.ArcOfCircle(Part.Circle(App.Vector(-117, -156, 0), App.Vector(0, 0, 1), 56), math.radians(-18), math.radians(16)),
    Part.ArcOfCircle(Part.Circle(App.Vector(-115, -159, 0), App.Vector(0, 0, 1), 56), math.radians(20), math.radians(54)),
    Part.LineSegment(App.Vector(-15, -39, 0), App.Vector(-15, -85, 0)),
    Part.ArcOfCircle(Part.Circle(App.Vector(0, -120, 0), App.Vector(0, 0, 1), 38), math.radians(113), math.radians(139)),
    Part.LineSegment(App.Vector(-29, -95, 0), App.Vector(-73, -81, 0)),
    Part.ArcOfCircle(Part.Circle(App.Vector(0, -120, 0), App.Vector(0, 0, 1), 82), math.radians(147.97), math.radians(151.52)),
    Part.ArcOfCircle(Part.Circle(App.Vector(-70, -20, 0), App.Vector(0, 0, 1), 56), math.radians(-90), math.radians(-56)),
    Part.ArcOfCircle(Part.Circle(App.Vector(-73, -22, 0), App.Vector(0, 0, 1), 56), math.radians(-52), math.radians(-18)),
    Part.ArcOfCircle(Part.Circle(App.Vector(0, -120, 0), App.Vector(0, 0, 1), 83), math.radians(100.48), math.radians(104.03)),
], False)
sketch8.addConstraint([
    Sketcher.Constraint("Coincident", 0, 2, 1, 1),
    Sketcher.Constraint("Coincident", 1, 2, 2, 2),
    Sketcher.Constraint("Coincident", 2, 1, 3, 1),
    Sketcher.Constraint("Coincident", 3, 2, 4, 1),
    Sketcher.Constraint("Coincident", 4, 2, 5, 2),
    Sketcher.Constraint("Coincident", 5, 1, 6, 1),
    Sketcher.Constraint("Coincident", 6, 2, 0, 1),
    Sketcher.Constraint("Coincident", 7, 2, 8, 1),
    Sketcher.Constraint("Coincident", 8, 2, 9, 2),
    Sketcher.Constraint("Coincident", 9, 1, 10, 1),
    Sketcher.Constraint("Coincident", 10, 2, 11, 1),
    Sketcher.Constraint("Coincident", 11, 2, 12, 2),
    Sketcher.Constraint("Coincident", 12, 1, 13, 1),
    Sketcher.Constraint("Coincident", 13, 2, 7, 1),
    Sketcher.Constraint("Coincident", 14, 2, 15, 1),
    Sketcher.Constraint("Coincident", 15, 2, 16, 2),
    Sketcher.Constraint("Coincident", 16, 1, 17, 1),
    Sketcher.Constraint("Coincident", 17, 2, 18, 1),
    Sketcher.Constraint("Coincident", 18, 2, 19, 2),
    Sketcher.Constraint("Coincident", 19, 1, 20, 1),
    Sketcher.Constraint("Coincident", 20, 2, 14, 1),
    Sketcher.Constraint("Coincident", 21, 1, 22, 1),
    Sketcher.Constraint("Coincident", 22, 2, 23, 1),
    Sketcher.Constraint("Coincident", 23, 2, 24, 1),
    Sketcher.Constraint("Coincident", 24, 2, 25, 2),
    Sketcher.Constraint("Coincident", 25, 1, 26, 1),
    Sketcher.Constraint("Coincident", 26, 2, 27, 1),
    Sketcher.Constraint("Coincident", 27, 2, 21, 2),
    Sketcher.Constraint("Coincident", 28, 2, 29, 1),
    Sketcher.Constraint("Coincident", 29, 2, 30, 1),
    Sketcher.Constraint("Coincident", 30, 2, 31, 2),
    Sketcher.Constraint("Coincident", 31, 1, 32, 1),
    Sketcher.Constraint("Coincident", 32, 2, 33, 1),
    Sketcher.Constraint("Coincident", 33, 2, 34, 2),
    Sketcher.Constraint("Coincident", 34, 1, 28, 1),
    Sketcher.Constraint("Vertical", 1),
    Sketcher.Constraint("Vertical", 28),
    Sketcher.Constraint("Coincident", 2, 3, 0, 3),
    Sketcher.Constraint("Coincident", 5, 3, 0, 3),
    Sketcher.Constraint("Coincident", 7, 3, 0, 3),
    Sketcher.Constraint("Coincident", 9, 3, 0, 3),
    Sketcher.Constraint("Coincident", 12, 3, 0, 3),
    Sketcher.Constraint("Coincident", 14, 3, 0, 3),
    Sketcher.Constraint("Coincident", 16, 3, 0, 3),
    Sketcher.Constraint("Coincident", 19, 3, 0, 3),
    Sketcher.Constraint("Coincident", 21, 3, 0, 3),
    Sketcher.Constraint("Coincident", 23, 3, 0, 3),
    Sketcher.Constraint("Coincident", 25, 3, 0, 3),
    Sketcher.Constraint("Coincident", 29, 3, 0, 3),
    Sketcher.Constraint("Coincident", 31, 3, 0, 3),
    Sketcher.Constraint("Coincident", 34, 3, 0, 3),
    Sketcher.Constraint("Equal", 3, 4),
    Sketcher.Constraint("Equal", 2, 5),
    Sketcher.Constraint("Equal", 0, 7),
    Sketcher.Constraint("Equal", 5, 9),
    Sketcher.Constraint("Equal", 4, 10),
    Sketcher.Constraint("Equal", 10, 11),
    Sketcher.Constraint("Equal", 9, 12),
    Sketcher.Constraint("Equal", 7, 14),
    Sketcher.Constraint("Equal", 12, 16),
    Sketcher.Constraint("Equal", 11, 17),
    Sketcher.Constraint("Equal", 17, 18),
    Sketcher.Constraint("Equal", 16, 19),
    Sketcher.Constraint("Equal", 19, 21),
    Sketcher.Constraint("Equal", 14, 23),
    Sketcher.Constraint("Equal", 21, 25),
    Sketcher.Constraint("Equal", 18, 26),
    Sketcher.Constraint("Equal", 26, 27),
    Sketcher.Constraint("Equal", 23, 29),
    Sketcher.Constraint("Equal", 25, 31),
    Sketcher.Constraint("Equal", 27, 32),
    Sketcher.Constraint("Equal", 32, 33),
    Sketcher.Constraint("Equal", 31, 34),
    Sketcher.Constraint("Symmetric", 17, 3, 18, 3, -2),
    Sketcher.Constraint("Symmetric", 11, 3, 26, 3, -2),
    Sketcher.Constraint("Symmetric", 10, 3, 27, 3, -2),
    Sketcher.Constraint("Symmetric", 4, 3, 32, 3, -2),
    Sketcher.Constraint("Symmetric", 3, 3, 33, 3, -2),
    Sketcher.Constraint("Symmetric", 15, 2, 19, 1, -2),
    Sketcher.Constraint("Parallel", 6, 8),
    Sketcher.Constraint("Parallel", 13, 15),
    Sketcher.Constraint("Parallel", 20, 24),
    Sketcher.Constraint("Parallel", 22, 30),
    Sketcher.Constraint("Horizontal", 14, 2, 20, 2),
    Sketcher.Constraint("Horizontal", 8, 2, 21, 1),
    Sketcher.Constraint("Horizontal", 7, 2, 22, 2),
    Sketcher.Constraint("Horizontal", 13, 2, 23, 2),
    Sketcher.Constraint("Horizontal", 0, 2, 28, 2),
    Sketcher.Constraint("Horizontal", 6, 2, 29, 2),
    Sketcher.Constraint("Equal", 6, 8),
    Sketcher.Constraint("Equal", 8, 13),
    Sketcher.Constraint("Equal", 13, 15),
    Sketcher.Constraint("Radius", 0, 38.0),
    Sketcher.Constraint("Radius", 2, 82.5),
    Sketcher.Constraint("Angle", 6, Q("-162 deg")),
    Sketcher.Constraint("Angle", 13, Q("126 deg")),
    Sketcher.Constraint("DistanceY", 0, 3, -1, 1, 120.0),
    Sketcher.Constraint("DistanceX", -1, 1, 0, 2, 15.0),
    Sketcher.Constraint("DistanceX", -1, 1, 2, 1, 20.0),
    Sketcher.Constraint("DistanceY", 17, 2, -1, 1, 186.0),
    Sketcher.Constraint("Radius", 3, 56.001063),
    Sketcher.Constraint("DistanceY", 5, 1, 3, 2, 14.0603),
    Sketcher.Constraint("DistanceX", 4, 2, 8, 2, 11.8483),
    Sketcher.Constraint("DistanceY", 11, 3, 8, 2, 46.749401),
    Sketcher.Constraint("DistanceY", 11, 2, 10, 3, 13.561298),
    Sketcher.Constraint("DistanceX", 7, 2, 11, 2, 25.385501),
    Sketcher.Constraint("DistanceY", 18, 3, 15, 2, 47.522799),
    Sketcher.Constraint("DistanceX", 19, 1, 18, 3, 37.383398),
    Sketcher.Constraint("DistanceX", -1, 1, 4, 3, 70.208509),
    Sketcher.Constraint("DistanceX", -1, 1, 10, 2, 62.76973),
])
pocket6 = body2.newObject("PartDesign::Pocket", "Pocket005")
pocket6.Profile = sketch8
pocket6.Length = 4
pocket6.Reversed = True

doc.recompute()
